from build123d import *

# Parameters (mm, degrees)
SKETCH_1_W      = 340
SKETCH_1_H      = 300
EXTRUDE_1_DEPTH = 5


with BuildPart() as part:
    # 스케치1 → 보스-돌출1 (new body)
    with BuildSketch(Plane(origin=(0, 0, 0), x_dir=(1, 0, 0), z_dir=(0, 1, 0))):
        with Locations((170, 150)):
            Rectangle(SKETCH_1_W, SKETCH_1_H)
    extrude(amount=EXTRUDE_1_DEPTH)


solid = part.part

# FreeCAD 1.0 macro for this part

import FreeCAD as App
import Part
import Sketcher

V = App.Vector
Q = App.Units.Quantity


def add_polygon(sketch, points):
    """Adds a closed chain of lines whose ends are joined by coincident constraints."""
    first, n = sketch.GeometryCount, len(points)
    for a, b in zip(points, points[1:] + points[:1]):
        sketch.addGeometry(Part.LineSegment(App.Vector(*a, 0), App.Vector(*b, 0)), False)
    for i in range(n):
        sketch.addConstraint(Sketcher.Constraint("Coincident", first + i, 2, first + (i + 1) % n, 1))

doc = App.newDocument("Part")
body = doc.addObject("PartDesign::Body", "Body")

sketch1 = doc.addObject("Sketcher::SketchObject", "Sketch")
body.addObject(sketch1)
sketch1.AttachmentSupport = (doc.XZ_Plane, [""])
sketch1.MapMode = "FlatFace"
add_polygon(sketch1, [(0, -300), (0, 0), (340, 0), (340, -300)])
sketch1.addConstraint([
    Sketcher.Constraint("Vertical", 0),
    Sketcher.Constraint("Horizontal", 1),
    Sketcher.Constraint("Vertical", 2),
    Sketcher.Constraint("Horizontal", 3),
    Sketcher.Constraint("Coincident", 0, 2, -1, 1),
    Sketcher.Constraint("DistanceX", 1, 1, 1, 2, Q("340 mm")),
    Sketcher.Constraint("DistanceY", 0, 1, 0, 2, Q("300 mm")),
])
pad1 = doc.addObject("PartDesign::Pad", "Pad")
body.addObject(pad1)
pad1.Profile = sketch1
pad1.Length = 5
pad1.Reversed = True

doc.recompute()
